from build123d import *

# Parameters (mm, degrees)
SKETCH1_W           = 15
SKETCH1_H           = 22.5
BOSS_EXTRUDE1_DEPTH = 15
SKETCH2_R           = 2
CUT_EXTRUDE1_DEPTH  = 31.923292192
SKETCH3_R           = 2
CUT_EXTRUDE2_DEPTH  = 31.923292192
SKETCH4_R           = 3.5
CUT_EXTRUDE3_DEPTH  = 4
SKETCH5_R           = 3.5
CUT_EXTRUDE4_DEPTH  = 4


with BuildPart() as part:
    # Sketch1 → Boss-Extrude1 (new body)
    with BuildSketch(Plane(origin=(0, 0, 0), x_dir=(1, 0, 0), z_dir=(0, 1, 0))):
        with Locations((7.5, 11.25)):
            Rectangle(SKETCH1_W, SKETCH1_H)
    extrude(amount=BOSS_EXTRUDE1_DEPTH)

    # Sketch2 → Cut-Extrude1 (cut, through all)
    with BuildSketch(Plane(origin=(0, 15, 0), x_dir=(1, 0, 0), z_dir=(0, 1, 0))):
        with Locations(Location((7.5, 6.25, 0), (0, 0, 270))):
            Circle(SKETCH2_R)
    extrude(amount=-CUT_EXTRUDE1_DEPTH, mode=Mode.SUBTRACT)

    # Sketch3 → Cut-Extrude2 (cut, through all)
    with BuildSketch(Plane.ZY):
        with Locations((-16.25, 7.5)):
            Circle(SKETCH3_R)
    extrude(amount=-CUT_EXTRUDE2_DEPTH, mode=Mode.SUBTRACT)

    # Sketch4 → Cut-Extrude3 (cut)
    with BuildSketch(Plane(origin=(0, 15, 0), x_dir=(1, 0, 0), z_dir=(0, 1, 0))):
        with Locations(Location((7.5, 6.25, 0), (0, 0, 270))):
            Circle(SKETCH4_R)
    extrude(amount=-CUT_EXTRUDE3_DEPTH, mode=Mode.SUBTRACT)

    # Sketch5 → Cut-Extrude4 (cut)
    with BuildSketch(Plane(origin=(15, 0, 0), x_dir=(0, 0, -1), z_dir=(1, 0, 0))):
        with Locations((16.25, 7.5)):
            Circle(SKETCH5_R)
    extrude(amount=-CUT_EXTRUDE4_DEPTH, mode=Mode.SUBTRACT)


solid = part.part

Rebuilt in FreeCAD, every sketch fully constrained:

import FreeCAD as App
import Part
import Sketcher

doc = App.newDocument("Part")
params = doc.addObject("Spreadsheet::Sheet", "Params")
for row, (alias, value) in enumerate([
    ("sketch1_width", "15 mm"),
    ("sketch1_height", "22.5 mm"),
    ("pad1_length", "15 mm"),
    ("sketch2_diameter", "4 mm"),
    ("sketch3_diameter", "4 mm"),
    ("sketch4_diameter", "7 mm"),
    ("pocket3_length", "4 mm"),
    ("sketch5_diameter", "7 mm"),
    ("pocket4_length", "4 mm"),
], start=1):
    params.set(f"A{row}", alias)
    params.set(f"B{row}", "=" + value)
    params.setAlias(f"B{row}", alias)

body = doc.addObject("PartDesign::Body", "Body")

# Sketch on XZ plane
sketch1 = doc.addObject("Sketcher::SketchObject", "Sketch")
body.addObject(sketch1)
sketch1.AttachmentSupport = (doc.XZ_Plane, [""])
sketch1.MapMode = "FlatFace"
sketch1.addGeometry([
    Part.LineSegment(App.Vector(0, -22, 0), App.Vector(0, 0, 0)),
    Part.LineSegment(App.Vector(0, 0, 0), App.Vector(15, 0, 0)),
    Part.LineSegment(App.Vector(15, 0, 0), App.Vector(15, -22, 0)),
    Part.LineSegment(App.Vector(15, -22, 0), App.Vector(0, -22, 0)),
], False)
sketch1.addConstraint([
    Sketcher.Constraint("Coincident", 0, 2, 1, 1),
    Sketcher.Constraint("Coincident", 1, 2, 2, 1),
    Sketcher.Constraint("Coincident", 2, 2, 3, 1),
    Sketcher.Constraint("Coincident", 3, 2, 0, 1),
    Sketcher.Constraint("Vertical", 0),
    Sketcher.Constraint("Horizontal", 1),
    Sketcher.Constraint("Vertical", 2),
    Sketcher.Constraint("Horizontal", 3),
    Sketcher.Constraint("Coincident", 0, 2, -1, 1),
    Sketcher.Constraint("DistanceX", 1, 1, 1, 2, 15.0),
    Sketcher.Constraint("DistanceY", 0, 1, 0, 2, 22.5),
])
sketch1.setExpression("Constraints[9]", "Params.sketch1_width")
sketch1.setExpression("Constraints[10]", "Params.sketch1_height")
pad1 = doc.addObject("PartDesign::Pad", "Pad")
body.addObject(pad1)
pad1.Profile = sketch1
pad1.setExpression("Length", "Params.pad1_length")
pad1.Reversed = True

# Sketch on XZ plane
sketch2 = doc.addObject("Sketcher::SketchObject", "Sketch001")
body.addObject(sketch2)
sketch2.AttachmentSupport = (doc.XZ_Plane, [""])
sketch2.MapMode = "FlatFace"
sketch2.AttachmentOffset = App.Placement(App.Vector(0, 0, -15), App.Rotation())
sketch2.addGeometry(Part.Circle(App.Vector(7.5, -6.2, 0), App.Vector(0, 0, 1), 2), False)
sketch2.addConstraint([
    Sketcher.Constraint("Diameter", 0, 4.0),
    Sketcher.Constraint("DistanceX", -1, 1, 0, 3, 7.5),
    Sketcher.Constraint("DistanceY", 0, 3, -1, 1, 6.25),
])
sketch2.setExpression("Constraints[0]", "Params.sketch2_diameter")
pocket1 = doc.addObject("PartDesign::Pocket", "Pocket")
body.addObject(pocket1)
pocket1.Profile = sketch2
pocket1.Type = "ThroughAll"
pocket1.Reversed = True

# Sketch on YZ plane
sketch3 = doc.addObject("Sketcher::SketchObject", "Sketch002")
body.addObject(sketch3)
sketch3.AttachmentSupport = (doc.YZ_Plane, [""])
sketch3.MapMode = "FlatFace"
sketch3.addGeometry(Part.Circle(App.Vector(7.5, -16.2, 0), App.Vector(0, 0, 1), 2), False)
sketch3.addConstraint([
    Sketcher.Constraint("Diameter", 0, 4.0),
    Sketcher.Constraint("DistanceX", -1, 1, 0, 3, 7.5),
    Sketcher.Constraint("DistanceY", 0, 3, -1, 1, 16.25),
])
sketch3.setExpression("Constraints[0]", "Params.sketch3_diameter")
pocket2 = doc.addObject("PartDesign::Pocket", "Pocket001")
body.addObject(pocket2)
pocket2.Profile = sketch3
pocket2.Type = "ThroughAll"
pocket2.Reversed = True

# Sketch on XZ plane
sketch4 = doc.addObject("Sketcher::SketchObject", "Sketch003")
body.addObject(sketch4)
sketch4.AttachmentSupport = (doc.XZ_Plane, [""])
sketch4.MapMode = "FlatFace"
sketch4.AttachmentOffset = App.Placement(App.Vector(0, 0, -15), App.Rotation())
sketch4.addGeometry(Part.Circle(App.Vector(7.5, -6.2, 0), App.Vector(0, 0, 1), 3.5), False)
sketch4.addConstraint([
    Sketcher.Constraint("Diameter", 0, 7.0),
    Sketcher.Constraint("DistanceX", -1, 1, 0, 3, 7.5),
    Sketcher.Constraint("DistanceY", 0, 3, -1, 1, 6.25),
])
sketch4.setExpression("Constraints[0]", "Params.sketch4_diameter")
pocket3 = doc.addObject("PartDesign::Pocket", "Pocket002")
body.addObject(pocket3)
pocket3.Profile = sketch4
pocket3.setExpression("Length", "Params.pocket3_length")
pocket3.Reversed = True

# Sketch on YZ plane
sketch5 = doc.addObject("Sketcher::SketchObject", "Sketch004")
body.addObject(sketch5)
sketch5.AttachmentSupport = (doc.YZ_Plane, [""])
sketch5.MapMode = "FlatFace"
sketch5.AttachmentOffset = App.Placement(App.Vector(0, 0, 15), App.Rotation())
sketch5.addGeometry(Part.Circle(App.Vector(7.5, -16.2, 0), App.Vector(0, 0, 1), 3.5), False)
sketch5.addConstraint([
    Sketcher.Constraint("Diameter", 0, 7.0),
    Sketcher.Constraint("DistanceX", -1, 1, 0, 3, 7.5),
    Sketcher.Constraint("DistanceY", 0, 3, -1, 1, 16.25),
])
sketch5.setExpression("Constraints[0]", "Params.sketch5_diameter")
pocket4 = doc.addObject("PartDesign::Pocket", "Pocket003")
body.addObject(pocket4)
pocket4.Profile = sketch5
pocket4.setExpression("Length", "Params.pocket4_length")

doc.recompute()
